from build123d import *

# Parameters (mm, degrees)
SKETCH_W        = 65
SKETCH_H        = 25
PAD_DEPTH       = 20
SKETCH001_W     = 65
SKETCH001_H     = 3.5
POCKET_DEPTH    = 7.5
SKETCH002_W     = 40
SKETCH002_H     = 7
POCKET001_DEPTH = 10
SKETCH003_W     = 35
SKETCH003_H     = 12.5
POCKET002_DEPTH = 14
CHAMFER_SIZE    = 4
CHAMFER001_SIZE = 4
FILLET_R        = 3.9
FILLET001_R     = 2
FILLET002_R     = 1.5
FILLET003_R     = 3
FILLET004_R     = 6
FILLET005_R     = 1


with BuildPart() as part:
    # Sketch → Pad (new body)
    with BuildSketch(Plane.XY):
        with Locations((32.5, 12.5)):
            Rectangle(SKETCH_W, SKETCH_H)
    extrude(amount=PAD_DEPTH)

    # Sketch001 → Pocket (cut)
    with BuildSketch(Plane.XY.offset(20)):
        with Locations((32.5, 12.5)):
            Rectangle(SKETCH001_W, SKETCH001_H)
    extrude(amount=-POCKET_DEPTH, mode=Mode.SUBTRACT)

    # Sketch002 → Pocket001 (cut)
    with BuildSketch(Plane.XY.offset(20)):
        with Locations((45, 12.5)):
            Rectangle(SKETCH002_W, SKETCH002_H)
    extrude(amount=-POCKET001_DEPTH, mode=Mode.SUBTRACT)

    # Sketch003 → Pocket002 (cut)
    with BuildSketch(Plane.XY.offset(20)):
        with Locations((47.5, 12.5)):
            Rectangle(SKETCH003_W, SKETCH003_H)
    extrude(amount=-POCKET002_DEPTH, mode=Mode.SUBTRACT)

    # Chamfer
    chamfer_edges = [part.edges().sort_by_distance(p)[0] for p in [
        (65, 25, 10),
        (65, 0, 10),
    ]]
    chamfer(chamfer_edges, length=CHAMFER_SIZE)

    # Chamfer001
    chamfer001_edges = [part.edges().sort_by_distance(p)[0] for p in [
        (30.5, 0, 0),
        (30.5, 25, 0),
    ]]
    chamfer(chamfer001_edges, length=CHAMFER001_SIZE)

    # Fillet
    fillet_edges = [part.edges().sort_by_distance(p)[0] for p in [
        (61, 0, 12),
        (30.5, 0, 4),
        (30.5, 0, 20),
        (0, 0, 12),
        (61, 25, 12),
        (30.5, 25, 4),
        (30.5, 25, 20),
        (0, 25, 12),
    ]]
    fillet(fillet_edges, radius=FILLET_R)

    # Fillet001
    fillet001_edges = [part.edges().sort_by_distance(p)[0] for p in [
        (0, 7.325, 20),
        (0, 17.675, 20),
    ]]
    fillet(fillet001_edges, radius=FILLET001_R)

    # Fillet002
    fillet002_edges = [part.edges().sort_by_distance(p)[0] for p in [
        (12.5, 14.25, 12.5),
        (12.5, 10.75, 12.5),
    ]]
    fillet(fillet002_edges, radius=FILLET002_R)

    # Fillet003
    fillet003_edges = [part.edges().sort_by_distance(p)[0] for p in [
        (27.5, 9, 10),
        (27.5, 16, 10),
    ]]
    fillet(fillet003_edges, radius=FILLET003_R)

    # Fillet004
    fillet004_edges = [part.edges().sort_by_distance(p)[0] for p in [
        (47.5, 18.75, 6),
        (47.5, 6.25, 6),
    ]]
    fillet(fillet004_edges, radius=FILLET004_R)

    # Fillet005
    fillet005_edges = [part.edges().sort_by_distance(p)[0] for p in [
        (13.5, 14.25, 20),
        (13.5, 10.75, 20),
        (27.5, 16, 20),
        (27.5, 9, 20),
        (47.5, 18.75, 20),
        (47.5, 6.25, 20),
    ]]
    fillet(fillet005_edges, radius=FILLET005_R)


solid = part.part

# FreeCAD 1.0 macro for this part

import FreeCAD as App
import Part
import Sketcher
from FreeCAD import Vector


def edges_at(feature, points):
    """Names of the edges that pass closest to the given points."""
    edges = feature.Shape.Edges
    near = lambda p: min(range(len(edges)), key=lambda i: edges[i].distToShape(Part.Vertex(*p))[0])
    return sorted({f"Edge{near(p) + 1}" for p in points})

doc = App.newDocument("Part")
body = doc.addObject("PartDesign::Body", "Body")

# Sketch on XY plane
sketch1 = body.newObject("Sketcher::SketchObject", "Sketch")
sketch1.AttachmentSupport = (doc.getObject("XY_Plane"), [""])
sketch1.MapMode = "FlatFace"
sketch1.addGeometry(Part.LineSegment(Vector(0, 25, 0), Vector(0, 0, 0)), False)
sketch1.addGeometry(Part.LineSegment(Vector(0, 0, 0), Vector(65, 0, 0)), False)
sketch1.addGeometry(Part.LineSegment(Vector(65, 0, 0), Vector(65, 25, 0)), False)
sketch1.addGeometry(Part.LineSegment(Vector(65, 25, 0), Vector(0, 25, 0)), False)
sketch1.addConstraint(Sketcher.Constraint("Coincident", 0, 2, 1, 1))
sketch1.addConstraint(Sketcher.Constraint("Coincident", 1, 2, 2, 1))
sketch1.addConstraint(Sketcher.Constraint("Coincident", 2, 2, 3, 1))
sketch1.addConstraint(Sketcher.Constraint("Coincident", 3, 2, 0, 1))
sketch1.addConstraint(Sketcher.Constraint("Vertical", 0))
sketch1.addConstraint(Sketcher.Constraint("Horizontal", 1))
sketch1.addConstraint(Sketcher.Constraint("Vertical", 2))
sketch1.addConstraint(Sketcher.Constraint("Horizontal", 3))
sketch1.addConstraint(Sketcher.Constraint("Coincident", 0, 2, -1, 1))
sketch1.addConstraint(Sketcher.Constraint("DistanceX", 1, 1, 1, 2, 65.0))
sketch1.addConstraint(Sketcher.Constraint("DistanceY", 0, 2, 0, 1, 25.0))
pad1 = body.newObject("PartDesign::Pad", "Pad")
pad1.Profile = sketch1
pad1.Length = 20

# Sketch on XY plane
sketch2 = body.newObject("Sketcher::SketchObject", "Sketch001")
sketch2.AttachmentSupport = (doc.getObject("XY_Plane"), [""])
sketch2.MapMode = "FlatFace"
sketch2.AttachmentOffset = App.Placement(Vector(0, 0, 20), App.Rotation())
sketch2.addGeometry(Part.LineSegment(Vector(0, 14.2, 0), Vector(0, 10.8, 0)), False)
sketch2.addGeometry(Part.LineSegment(Vector(0, 10.8, 0), Vector(65, 10.8, 0)), False)
sketch2.addGeometry(Part.LineSegment(Vector(65, 10.8, 0), Vector(65, 14.2, 0)), False)
sketch2.addGeometry(Part.LineSegment(Vector(65, 14.2, 0), Vector(0, 14.2, 0)), False)
sketch2.addConstraint(Sketcher.Constraint("Coincident", 0, 2, 1, 1))
sketch2.addConstraint(Sketcher.Constraint("Coincident", 1, 2, 2, 1))
sketch2.addConstraint(Sketcher.Constraint("Coincident", 2, 2, 3, 1))
sketch2.addConstraint(Sketcher.Constraint("Coincident", 3, 2, 0, 1))
sketch2.addConstraint(Sketcher.Constraint("Vertical", 0))
sketch2.addConstraint(Sketcher.Constraint("Horizontal", 1))
sketch2.addConstraint(Sketcher.Constraint("Vertical", 2))
sketch2.addConstraint(Sketcher.Constraint("Horizontal", 3))
sketch2.addConstraint(Sketcher.Constraint("PointOnObject", 0, 2, -2))
sketch2.addConstraint(Sketcher.Constraint("DistanceX", 1, 1, 1, 2, 65.0))
sketch2.addConstraint(Sketcher.Constraint("DistanceY", 0, 2, 0, 1, 3.5))
sketch2.addConstraint(Sketcher.Constraint("DistanceY", -1, 1, 0, 2, 10.75))
pocket1 = body.newObject("PartDesign::Pocket", "Pocket")
pocket1.Profile = sketch2
pocket1.Length = 7.5

# Sketch on XY plane
sketch3 = body.newObject("Sketcher::SketchObject", "Sketch002")
sketch3.AttachmentSupport = (doc.getObject("XY_Plane"), [""])
sketch3.MapMode = "FlatFace"
sketch3.AttachmentOffset = App.Placement(Vector(0, 0, 20), App.Rotation())
sketch3.addGeometry(Part.LineSegment(Vector(25, 16, 0), Vector(25, 9, 0)), False)
sketch3.addGeometry(Part.LineSegment(Vector(25, 9, 0), Vector(65, 9, 0)), False)
sketch3.addGeometry(Part.LineSegment(Vector(65, 9, 0), Vector(65, 16, 0)), False)
sketch3.addGeometry(Part.LineSegment(Vector(65, 16, 0), Vector(25, 16, 0)), False)
sketch3.addConstraint(Sketcher.Constraint("Coincident", 0, 2, 1, 1))
sketch3.addConstraint(Sketcher.Constraint("Coincident", 1, 2, 2, 1))
sketch3.addConstraint(Sketcher.Constraint("Coincident", 2, 2, 3, 1))
sketch3.addConstraint(Sketcher.Constraint("Coincident", 3, 2, 0, 1))
sketch3.addConstraint(Sketcher.Constraint("Vertical", 0))
sketch3.addConstraint(Sketcher.Constraint("Horizontal", 1))
sketch3.addConstraint(Sketcher.Constraint("Vertical", 2))
sketch3.addConstraint(Sketcher.Constraint("Horizontal", 3))
sketch3.addConstraint(Sketcher.Constraint("DistanceX", 1, 1, 1, 2, 40.0))
sketch3.addConstraint(Sketcher.Constraint("DistanceY", 0, 2, 0, 1, 7.0))
sketch3.addConstraint(Sketcher.Constraint("DistanceX", -1, 1, 0, 2, 25.0))
sketch3.addConstraint(Sketcher.Constraint("DistanceY", -1, 1, 0, 2, 9.0))
pocket2 = body.newObject("PartDesign::Pocket", "Pocket001")
pocket2.Profile = sketch3
pocket2.Length = 10

# Sketch on XY plane
sketch4 = body.newObject("Sketcher::SketchObject", "Sketch003")
sketch4.AttachmentSupport = (doc.getObject("XY_Plane"), [""])
sketch4.MapMode = "FlatFace"
sketch4.AttachmentOffset = App.Placement(Vector(0, 0, 20), App.Rotation())
sketch4.addGeometry(Part.LineSegment(Vector(30, 19, 0), Vector(30, 6, 0)), False)
sketch4.addGeometry(Part.LineSegment(Vector(30, 6, 0), Vector(65, 6, 0)), False)
sketch4.addGeometry(Part.LineSegment(Vector(65, 6, 0), Vector(65, 19, 0)), False)
sketch4.addGeometry(Part.LineSegment(Vector(65, 19, 0), Vector(30, 19, 0)), False)
sketch4.addConstraint(Sketcher.Constraint("Coincident", 0, 2, 1, 1))
sketch4.addConstraint(Sketcher.Constraint("Coincident", 1, 2, 2, 1))
sketch4.addConstraint(Sketcher.Constraint("Coincident", 2, 2, 3, 1))
sketch4.addConstraint(Sketcher.Constraint("Coincident", 3, 2, 0, 1))
sketch4.addConstraint(Sketcher.Constraint("Vertical", 0))
sketch4.addConstraint(Sketcher.Constraint("Horizontal", 1))
sketch4.addConstraint(Sketcher.Constraint("Vertical", 2))
sketch4.addConstraint(Sketcher.Constraint("Horizontal", 3))
sketch4.addConstraint(Sketcher.Constraint("DistanceX", 1, 1, 1, 2, 35.0))
sketch4.addConstraint(Sketcher.Constraint("DistanceY", 0, 2, 0, 1, 12.5))
sketch4.addConstraint(Sketcher.Constraint("DistanceX", -1, 1, 0, 2, 30.0))
sketch4.addConstraint(Sketcher.Constraint("DistanceY", -1, 1, 0, 2, 6.25))
pocket3 = body.newObject("PartDesign::Pocket", "Pocket002")
pocket3.Profile = sketch4
pocket3.Length = 14
doc.recompute()

chamfer = body.newObject("PartDesign::Chamfer", "Chamfer")
chamfer.Base = (pocket3, edges_at(pocket3, [(65, 25, 10), (65, 0, 10)]))
chamfer.Size = 4
doc.recompute()

chamfer2 = body.newObject("PartDesign::Chamfer", "Chamfer001")
chamfer2.Base = (chamfer, edges_at(chamfer, [(30.5, 0, 0), (30.5, 25, 0)]))
chamfer2.Size = 4
doc.recompute()

fillet = body.newObject("PartDesign::Fillet", "Fillet")
fillet.Base = (chamfer2, edges_at(chamfer2, [
    (61, 0, 12),
    (30.5, 0, 4),
    (30.5, 0, 20),
    (0, 0, 12),
    (61, 25, 12),
    (30.5, 25, 4),
    (30.5, 25, 20),
    (0, 25, 12),
]))
fillet.Radius = 3.9
doc.recompute()

fillet2 = body.newObject("PartDesign::Fillet", "Fillet001")
fillet2.Base = (fillet, edges_at(fillet, [(0, 7.325, 20), (0, 17.675, 20)]))
fillet2.Radius = 2
doc.recompute()

fillet3 = body.newObject("PartDesign::Fillet", "Fillet002")
fillet3.Base = (fillet2, edges_at(fillet2, [(12.5, 14.25, 12.5), (12.5, 10.75, 12.5)]))
fillet3.Radius = 1.5
doc.recompute()

fillet4 = body.newObject("PartDesign::Fillet", "Fillet003")
fillet4.Base = (fillet3, edges_at(fillet3, [(27.5, 9, 10), (27.5, 16, 10)]))
fillet4.Radius = 3
doc.recompute()

fillet5 = body.newObject("PartDesign::Fillet", "Fillet004")
fillet5.Base = (fillet4, edges_at(fillet4, [(47.5, 18.75, 6), (47.5, 6.25, 6)]))
fillet5.Radius = 6
doc.recompute()

fillet6 = body.newObject("PartDesign::Fillet", "Fillet005")
fillet6.Base = (fillet5, edges_at(fillet5, [
    (13.5, 14.25, 20),
    (13.5, 10.75, 20),
    (27.5, 16, 20),
    (27.5, 9, 20),
    (47.5, 18.75, 20),
    (47.5, 6.25, 20),
]))
fillet6.Radius = 1

doc.recompute()
